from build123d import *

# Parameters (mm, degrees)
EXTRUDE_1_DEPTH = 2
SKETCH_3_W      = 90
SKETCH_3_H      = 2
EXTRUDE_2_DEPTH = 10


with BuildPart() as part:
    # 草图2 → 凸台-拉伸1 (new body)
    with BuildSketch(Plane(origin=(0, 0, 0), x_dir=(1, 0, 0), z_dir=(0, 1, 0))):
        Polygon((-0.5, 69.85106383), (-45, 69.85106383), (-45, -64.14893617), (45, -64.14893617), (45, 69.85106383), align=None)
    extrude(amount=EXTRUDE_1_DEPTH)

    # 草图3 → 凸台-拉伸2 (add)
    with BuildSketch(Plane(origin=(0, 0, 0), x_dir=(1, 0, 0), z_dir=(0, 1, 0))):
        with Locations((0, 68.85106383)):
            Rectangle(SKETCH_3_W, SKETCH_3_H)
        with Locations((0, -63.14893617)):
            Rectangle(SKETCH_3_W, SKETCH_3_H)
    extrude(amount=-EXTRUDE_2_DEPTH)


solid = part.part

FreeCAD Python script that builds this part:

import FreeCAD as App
import Part
import Sketcher

V = App.Vector
Q = App.Units.Quantity

doc = App.newDocument("Part")
params = doc.addObject("Spreadsheet::Sheet", "Params")
for row, (alias, value) in enumerate([
    ("sketch1_width", "90 mm"),
    ("sketch1_height", "134 mm"),
    ("pad1_length", "2 mm"),
    ("sketch2_width", "90 mm"),
    ("sketch2_height", "2 mm"),
    ("pad2_length", "10 mm"),
], start=1):
    params.set(f"A{row}", alias)
    params.set(f"B{row}", "=" + value)
    params.setAlias(f"B{row}", alias)

body = doc.addObject("PartDesign::Body", "Body")

sketch1 = doc.addObject("Sketcher::SketchObject", "Sketch")
body.addObject(sketch1)
sketch1.AttachmentSupport = (doc.XZ_Plane, [""])
sketch1.MapMode = "FlatFace"
sketch1.addGeometry([
    Part.LineSegment(V(-45, -70, 0), V(-45, 64, 0)),
    Part.LineSegment(V(-45, 64, 0), V(45, 64, 0)),
    Part.LineSegment(V(45, 64, 0), V(45, -70, 0)),
    Part.LineSegment(V(45, -70, 0), V(-45, -70, 0)),
], False)
sketch1.addConstraint([
    Sketcher.Constraint("Coincident", 0, 2, 1, 1),
    Sketcher.Constraint("Coincident", 1, 2, 2, 1),
    Sketcher.Constraint("Coincident", 2, 2, 3, 1),
    Sketcher.Constraint("Coincident", 3, 2, 0, 1),
    Sketcher.Constraint("Vertical", 0),
    Sketcher.Constraint("Horizontal", 1),
    Sketcher.Constraint("Vertical", 2),
    Sketcher.Constraint("Horizontal", 3),
    Sketcher.Constraint("DistanceX", 1, 1, 1, 2, Q("90 mm")),
    Sketcher.Constraint("DistanceY", 0, 1, 0, 2, Q("134 mm")),
    Sketcher.Constraint("DistanceX", 0, 2, -1, 1, Q("45 mm")),
    Sketcher.Constraint("DistanceY", -1, 1, 0, 2, Q("64.148936 mm")),
])
sketch1.setExpression("Constraints[8]", "Params.sketch1_width")
sketch1.setExpression("Constraints[9]", "Params.sketch1_height")
pad1 = doc.addObject("PartDesign::Pad", "Pad")
body.addObject(pad1)
pad1.Profile = sketch1
pad1.setExpression("Length", "Params.pad1_length")
pad1.Reversed = True

sketch2 = doc.addObject("Sketcher::SketchObject", "Sketch001")
body.addObject(sketch2)
sketch2.AttachmentSupport = (doc.XZ_Plane, [""])
sketch2.MapMode = "FlatFace"
sketch2.addGeometry([
    Part.LineSegment(V(-45, -69.9, 0), V(-45, -67.9, 0)),
    Part.LineSegment(V(-45, -67.9, 0), V(45, -67.9, 0)),
    Part.LineSegment(V(45, -67.9, 0), V(45, -69.9, 0)),
    Part.LineSegment(V(45, -69.9, 0), V(-45, -69.9, 0)),
    Part.LineSegment(V(-45, 62.1, 0), V(-45, 64.1, 0)),
    Part.LineSegment(V(-45, 64.1, 0), V(45, 64.1, 0)),
    Part.LineSegment(V(45, 64.1, 0), V(45, 62.1, 0)),
    Part.LineSegment(V(45, 62.1, 0), V(-45, 62.1, 0)),
], False)
sketch2.addConstraint([
    Sketcher.Constraint("Coincident", 0, 2, 1, 1),
    Sketcher.Constraint("Coincident", 1, 2, 2, 1),
    Sketcher.Constraint("Coincident", 2, 2, 3, 1),
    Sketcher.Constraint("Coincident", 3, 2, 0, 1),
    Sketcher.Constraint("Coincident", 4, 2, 5, 1),
    Sketcher.Constraint("Coincident", 5, 2, 6, 1),
    Sketcher.Constraint("Coincident", 6, 2, 7, 1),
    Sketcher.Constraint("Coincident", 7, 2, 4, 1),
    Sketcher.Constraint("Vertical", 0),
    Sketcher.Constraint("Horizontal", 1),
    Sketcher.Constraint("Vertical", 2),
    Sketcher.Constraint("Horizontal", 3),
    Sketcher.Constraint("Vertical", 4),
    Sketcher.Constraint("Horizontal", 5),
    Sketcher.Constraint("Vertical", 6),
    Sketcher.Constraint("Horizontal", 7),
    Sketcher.Constraint("Vertical", 3, 2, 4, 2),
    Sketcher.Constraint("Vertical", 2, 2, 5, 2),
    Sketcher.Constraint("Equal", 2, 4),
    Sketcher.Constraint("DistanceX", 1, 1, 1, 2, Q("90 mm")),
    Sketcher.Constraint("DistanceY", 0, 1, 0, 2, Q("2 mm")),
    Sketcher.Constraint("DistanceX", 0, 2, -1, 1, Q("45 mm")),
    Sketcher.Constraint("DistanceY", 0, 2, 4, 2, Q("132 mm")),
    Sketcher.Constraint("DistanceY", 0, 2, -1, 1, Q("67.851064 mm")),
])
sketch2.setExpression("Constraints[19]", "Params.sketch2_width")
sketch2.setExpression("Constraints[20]", "Params.sketch2_height")
pad2 = doc.addObject("PartDesign::Pad", "Pad001")
body.addObject(pad2)
pad2.Profile = sketch2
pad2.setExpression("Length", "Params.pad2_length")

doc.recompute()
